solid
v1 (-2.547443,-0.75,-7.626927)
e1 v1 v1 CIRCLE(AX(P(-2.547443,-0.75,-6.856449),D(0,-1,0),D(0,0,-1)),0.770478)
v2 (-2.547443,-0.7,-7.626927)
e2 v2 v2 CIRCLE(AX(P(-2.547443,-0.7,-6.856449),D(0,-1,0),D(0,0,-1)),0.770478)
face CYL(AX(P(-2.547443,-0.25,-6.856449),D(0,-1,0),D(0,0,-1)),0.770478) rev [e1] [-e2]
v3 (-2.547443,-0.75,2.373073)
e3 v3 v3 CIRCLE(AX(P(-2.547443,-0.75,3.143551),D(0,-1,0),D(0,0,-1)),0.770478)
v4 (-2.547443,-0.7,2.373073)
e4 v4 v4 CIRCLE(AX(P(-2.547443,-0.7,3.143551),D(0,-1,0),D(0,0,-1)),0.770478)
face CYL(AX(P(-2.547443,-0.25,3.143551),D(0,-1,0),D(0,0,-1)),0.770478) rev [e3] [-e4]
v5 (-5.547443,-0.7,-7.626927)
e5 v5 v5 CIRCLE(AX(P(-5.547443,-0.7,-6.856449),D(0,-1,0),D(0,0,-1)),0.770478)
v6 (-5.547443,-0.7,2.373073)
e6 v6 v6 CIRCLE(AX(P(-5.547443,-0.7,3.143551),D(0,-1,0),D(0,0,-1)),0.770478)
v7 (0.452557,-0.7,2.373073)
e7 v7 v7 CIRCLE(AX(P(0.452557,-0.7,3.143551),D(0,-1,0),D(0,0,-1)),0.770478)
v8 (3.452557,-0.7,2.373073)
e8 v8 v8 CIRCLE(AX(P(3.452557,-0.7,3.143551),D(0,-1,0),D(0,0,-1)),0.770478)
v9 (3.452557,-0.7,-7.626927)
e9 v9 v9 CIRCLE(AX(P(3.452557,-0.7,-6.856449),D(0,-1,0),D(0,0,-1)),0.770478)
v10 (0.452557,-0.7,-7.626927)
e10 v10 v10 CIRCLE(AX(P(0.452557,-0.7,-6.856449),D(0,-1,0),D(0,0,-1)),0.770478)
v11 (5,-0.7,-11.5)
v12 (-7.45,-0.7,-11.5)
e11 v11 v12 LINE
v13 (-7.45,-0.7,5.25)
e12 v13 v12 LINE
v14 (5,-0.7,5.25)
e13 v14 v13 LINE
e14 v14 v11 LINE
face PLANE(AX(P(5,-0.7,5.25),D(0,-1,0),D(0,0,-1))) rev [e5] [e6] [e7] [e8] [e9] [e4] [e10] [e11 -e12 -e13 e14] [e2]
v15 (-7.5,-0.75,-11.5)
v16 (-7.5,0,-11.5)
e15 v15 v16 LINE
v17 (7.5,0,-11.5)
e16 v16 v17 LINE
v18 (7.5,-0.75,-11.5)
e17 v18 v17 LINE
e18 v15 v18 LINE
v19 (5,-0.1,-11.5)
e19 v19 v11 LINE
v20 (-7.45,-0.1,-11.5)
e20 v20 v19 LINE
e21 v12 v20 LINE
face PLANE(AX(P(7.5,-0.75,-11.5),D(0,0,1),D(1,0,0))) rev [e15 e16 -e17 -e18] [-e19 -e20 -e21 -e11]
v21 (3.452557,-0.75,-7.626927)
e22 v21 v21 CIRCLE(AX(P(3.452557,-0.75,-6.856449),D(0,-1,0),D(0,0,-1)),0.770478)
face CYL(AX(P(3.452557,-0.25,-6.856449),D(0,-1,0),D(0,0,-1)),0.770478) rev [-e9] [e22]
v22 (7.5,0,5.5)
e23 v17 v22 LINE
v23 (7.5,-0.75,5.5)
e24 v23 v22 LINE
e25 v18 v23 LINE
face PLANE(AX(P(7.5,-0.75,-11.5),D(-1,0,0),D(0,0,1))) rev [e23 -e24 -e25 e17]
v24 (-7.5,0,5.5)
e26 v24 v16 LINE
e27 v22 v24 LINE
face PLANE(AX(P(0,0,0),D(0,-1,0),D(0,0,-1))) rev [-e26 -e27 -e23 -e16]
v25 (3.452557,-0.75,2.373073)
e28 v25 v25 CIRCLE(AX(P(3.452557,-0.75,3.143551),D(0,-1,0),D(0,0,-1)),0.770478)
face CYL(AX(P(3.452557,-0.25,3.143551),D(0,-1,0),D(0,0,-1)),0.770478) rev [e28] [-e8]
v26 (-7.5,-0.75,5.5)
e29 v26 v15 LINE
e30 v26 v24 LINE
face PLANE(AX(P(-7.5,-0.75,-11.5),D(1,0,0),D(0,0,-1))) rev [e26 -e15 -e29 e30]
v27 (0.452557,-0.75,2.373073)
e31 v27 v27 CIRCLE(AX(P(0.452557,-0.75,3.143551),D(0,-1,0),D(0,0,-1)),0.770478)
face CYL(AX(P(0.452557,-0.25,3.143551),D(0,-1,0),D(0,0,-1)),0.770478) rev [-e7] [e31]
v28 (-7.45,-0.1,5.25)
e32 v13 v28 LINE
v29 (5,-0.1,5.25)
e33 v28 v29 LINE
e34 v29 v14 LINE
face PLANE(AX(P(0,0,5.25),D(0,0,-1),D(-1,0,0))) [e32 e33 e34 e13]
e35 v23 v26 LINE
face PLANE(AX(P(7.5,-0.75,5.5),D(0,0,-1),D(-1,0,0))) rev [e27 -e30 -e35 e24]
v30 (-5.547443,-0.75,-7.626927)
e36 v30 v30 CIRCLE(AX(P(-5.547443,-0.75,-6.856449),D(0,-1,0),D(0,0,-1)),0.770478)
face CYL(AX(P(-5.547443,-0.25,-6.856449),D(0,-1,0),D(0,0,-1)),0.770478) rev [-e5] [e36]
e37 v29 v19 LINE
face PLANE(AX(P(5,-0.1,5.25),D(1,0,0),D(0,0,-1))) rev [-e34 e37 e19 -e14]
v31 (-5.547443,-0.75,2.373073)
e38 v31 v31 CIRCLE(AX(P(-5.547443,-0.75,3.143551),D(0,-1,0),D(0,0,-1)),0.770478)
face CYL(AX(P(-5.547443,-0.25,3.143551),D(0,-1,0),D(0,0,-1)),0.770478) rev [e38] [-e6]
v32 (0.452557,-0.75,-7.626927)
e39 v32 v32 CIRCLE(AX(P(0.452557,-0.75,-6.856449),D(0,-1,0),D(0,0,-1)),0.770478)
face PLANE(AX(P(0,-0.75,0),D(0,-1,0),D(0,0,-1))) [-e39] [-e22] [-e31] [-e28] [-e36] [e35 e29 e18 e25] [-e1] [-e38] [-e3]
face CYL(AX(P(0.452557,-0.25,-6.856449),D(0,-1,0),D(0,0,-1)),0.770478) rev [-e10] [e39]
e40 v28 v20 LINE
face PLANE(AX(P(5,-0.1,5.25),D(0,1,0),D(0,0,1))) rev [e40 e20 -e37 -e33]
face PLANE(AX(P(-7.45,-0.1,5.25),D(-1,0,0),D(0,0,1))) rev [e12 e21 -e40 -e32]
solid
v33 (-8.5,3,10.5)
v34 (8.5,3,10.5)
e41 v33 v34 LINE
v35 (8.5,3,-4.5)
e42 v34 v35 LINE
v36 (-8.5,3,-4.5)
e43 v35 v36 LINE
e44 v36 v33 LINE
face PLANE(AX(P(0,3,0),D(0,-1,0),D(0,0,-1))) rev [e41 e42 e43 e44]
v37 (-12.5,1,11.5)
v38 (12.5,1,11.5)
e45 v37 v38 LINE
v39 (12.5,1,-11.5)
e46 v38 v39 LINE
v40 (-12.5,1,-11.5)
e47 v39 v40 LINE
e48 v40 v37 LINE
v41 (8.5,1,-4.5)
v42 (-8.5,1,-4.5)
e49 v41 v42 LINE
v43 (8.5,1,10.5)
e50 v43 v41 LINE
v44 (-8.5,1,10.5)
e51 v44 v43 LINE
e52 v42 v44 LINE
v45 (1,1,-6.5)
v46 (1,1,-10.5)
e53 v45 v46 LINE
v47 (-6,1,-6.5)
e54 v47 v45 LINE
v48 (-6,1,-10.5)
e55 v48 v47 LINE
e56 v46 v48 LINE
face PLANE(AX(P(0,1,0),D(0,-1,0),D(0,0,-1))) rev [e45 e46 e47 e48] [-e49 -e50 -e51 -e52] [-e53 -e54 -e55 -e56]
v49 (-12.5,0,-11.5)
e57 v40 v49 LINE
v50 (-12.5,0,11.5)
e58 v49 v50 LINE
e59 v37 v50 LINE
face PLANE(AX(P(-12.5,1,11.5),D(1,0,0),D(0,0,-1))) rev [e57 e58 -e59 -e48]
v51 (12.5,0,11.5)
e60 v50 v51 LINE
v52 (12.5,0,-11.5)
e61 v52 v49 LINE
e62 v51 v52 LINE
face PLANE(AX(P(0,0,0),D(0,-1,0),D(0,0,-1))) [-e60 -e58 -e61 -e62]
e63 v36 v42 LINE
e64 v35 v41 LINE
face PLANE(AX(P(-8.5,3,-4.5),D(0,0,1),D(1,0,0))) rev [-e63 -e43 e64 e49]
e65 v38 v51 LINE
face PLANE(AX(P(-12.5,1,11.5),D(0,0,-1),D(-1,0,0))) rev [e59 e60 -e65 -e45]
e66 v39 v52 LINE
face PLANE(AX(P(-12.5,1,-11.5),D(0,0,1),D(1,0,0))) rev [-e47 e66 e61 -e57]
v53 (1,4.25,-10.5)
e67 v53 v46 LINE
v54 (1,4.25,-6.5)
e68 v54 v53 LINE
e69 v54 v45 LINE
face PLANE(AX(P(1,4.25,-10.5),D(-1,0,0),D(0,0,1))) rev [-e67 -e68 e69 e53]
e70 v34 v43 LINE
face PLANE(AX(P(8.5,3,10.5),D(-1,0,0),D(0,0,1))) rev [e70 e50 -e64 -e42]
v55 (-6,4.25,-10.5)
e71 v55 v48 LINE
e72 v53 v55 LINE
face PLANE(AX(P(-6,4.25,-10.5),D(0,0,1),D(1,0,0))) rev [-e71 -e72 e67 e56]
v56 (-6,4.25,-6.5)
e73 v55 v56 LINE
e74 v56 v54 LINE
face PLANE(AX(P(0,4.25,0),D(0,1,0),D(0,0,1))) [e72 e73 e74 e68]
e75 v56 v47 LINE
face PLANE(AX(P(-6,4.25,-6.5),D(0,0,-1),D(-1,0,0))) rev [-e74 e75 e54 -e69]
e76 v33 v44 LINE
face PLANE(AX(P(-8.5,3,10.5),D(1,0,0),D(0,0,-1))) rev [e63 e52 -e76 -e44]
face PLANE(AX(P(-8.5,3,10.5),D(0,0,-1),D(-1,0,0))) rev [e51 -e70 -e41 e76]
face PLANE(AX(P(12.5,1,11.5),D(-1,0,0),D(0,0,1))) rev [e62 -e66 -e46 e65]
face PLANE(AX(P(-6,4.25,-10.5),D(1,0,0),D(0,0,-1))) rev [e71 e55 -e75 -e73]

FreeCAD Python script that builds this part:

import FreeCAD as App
import Part
import Sketcher

V = App.Vector
Q = App.Units.Quantity


def add_polygon(sketch, points):
    """Adds a closed chain of lines whose ends are joined by coincident constraints."""
    first, n = sketch.GeometryCount, len(points)
    for a, b in zip(points, points[1:] + points[:1]):
        sketch.addGeometry(Part.LineSegment(App.Vector(*a, 0), App.Vector(*b, 0)), False)
    for i in range(n):
        sketch.addConstraint(Sketcher.Constraint("Coincident", first + i, 2, first + (i + 1) % n, 1))

doc = App.newDocument("Part")
params = doc.addObject("Spreadsheet::Sheet", "Params")
for row, (alias, value) in enumerate([
    ("sketch1_width", "25 mm"),
    ("sketch1_height", "23 mm"),
    ("pad1_length", "1 mm"),
    ("sketch2_width", "17 mm"),
    ("sketch2_height", "15 mm"),
    ("pad2_length", "2 mm"),
    ("sketch3_width", "7 mm"),
    ("sketch3_height", "4 mm"),
    ("pad3_length", "3.25 mm"),
    ("sketch4_width", "15 mm"),
    ("sketch4_height", "17 mm"),
    ("pad4_length", "0.75 mm"),
    ("sketch5_height", "0.6 mm"),
    ("sketch5_width", "12.45 mm"),
    ("pocket1_length", "16.75 mm"),
    ("pocket2_length", "0.5 mm"),
], start=1):
    params.set(f"A{row}", alias)
    params.set(f"B{row}", "=" + value)
    params.setAlias(f"B{row}", alias)

body = doc.addObject("PartDesign::Body", "Body")

sketch1 = doc.addObject("Sketcher::SketchObject", "Sketch")
body.addObject(sketch1)
sketch1.AttachmentSupport = (doc.XZ_Plane, [""])
sketch1.MapMode = "FlatFace"
add_polygon(sketch1, [(-12.5, -11.5), (-12.5, 11.5), (12.5, 11.5), (12.5, -11.5)])
sketch1.addConstraint(Sketcher.Constraint("Vertical", 0))
sketch1.addConstraint(Sketcher.Constraint("Horizontal", 1))
sketch1.addConstraint(Sketcher.Constraint("Vertical", 2))
sketch1.addConstraint(Sketcher.Constraint("Horizontal", 3))
sketch1.addConstraint(Sketcher.Constraint("Symmetric", 0, 2, 2, 2, -1, 1))
sketch1.addConstraint(Sketcher.Constraint("DistanceX", 1, 1, 1, 2, Q("25 mm")))
sketch1.addConstraint(Sketcher.Constraint("DistanceY", 0, 1, 0, 2, Q("23 mm")))
sketch1.setExpression("Constraints[9]", "Params.sketch1_width")
sketch1.setExpression("Constraints[10]", "Params.sketch1_height")
pad1 = doc.addObject("PartDesign::Pad", "Pad")
body.addObject(pad1)
pad1.Profile = sketch1
pad1.setExpression("Length", "Params.pad1_length")
pad1.Reversed = True

sketch2 = doc.addObject("Sketcher::SketchObject", "Sketch001")
body.addObject(sketch2)
sketch2.AttachmentSupport = (doc.XZ_Plane, [""])
sketch2.MapMode = "FlatFace"
sketch2.AttachmentOffset = App.Placement(V(0, 0, -1), App.Rotation())
add_polygon(sketch2, [(-8.5, -4.5), (-8.5, 10.5), (8.5, 10.5), (8.5, -4.5)])
sketch2.addConstraint(Sketcher.Constraint("Vertical", 0))
sketch2.addConstraint(Sketcher.Constraint("Horizontal", 1))
sketch2.addConstraint(Sketcher.Constraint("Vertical", 2))
sketch2.addConstraint(Sketcher.Constraint("Horizontal", 3))
sketch2.addConstraint(Sketcher.Constraint("DistanceX", 1, 1, 1, 2, Q("17 mm")))
sketch2.addConstraint(Sketcher.Constraint("DistanceY", 0, 1, 0, 2, Q("15 mm")))
sketch2.addConstraint(Sketcher.Constraint("DistanceX", 0, 2, -1, 1, Q("8.5 mm")))
sketch2.addConstraint(Sketcher.Constraint("DistanceY", -1, 1, 0, 2, Q("10.5 mm")))
sketch2.setExpression("Constraints[8]", "Params.sketch2_width")
sketch2.setExpression("Constraints[9]", "Params.sketch2_height")
pad2 = doc.addObject("PartDesign::Pad", "Pad001")
body.addObject(pad2)
pad2.Profile = sketch2
pad2.setExpression("Length", "Params.pad2_length")
pad2.Reversed = True

sketch3 = doc.addObject("Sketcher::SketchObject", "Sketch002")
body.addObject(sketch3)
sketch3.AttachmentSupport = (doc.XZ_Plane, [""])
sketch3.MapMode = "FlatFace"
sketch3.AttachmentOffset = App.Placement(V(0, 0, -1), App.Rotation())
add_polygon(sketch3, [(-6, -10.5), (-6, -6.5), (1, -6.5), (1, -10.5)])
sketch3.addConstraint(Sketcher.Constraint("Vertical", 0))
sketch3.addConstraint(Sketcher.Constraint("Horizontal", 1))
sketch3.addConstraint(Sketcher.Constraint("Vertical", 2))
sketch3.addConstraint(Sketcher.Constraint("Horizontal", 3))
sketch3.addConstraint(Sketcher.Constraint("DistanceX", 1, 1, 1, 2, Q("7 mm")))
sketch3.addConstraint(Sketcher.Constraint("DistanceY", 0, 1, 0, 2, Q("4 mm")))
sketch3.addConstraint(Sketcher.Constraint("DistanceX", 0, 2, -1, 1, Q("6 mm")))
sketch3.addConstraint(Sketcher.Constraint("DistanceY", 0, 2, -1, 1, Q("6.5 mm")))
sketch3.setExpression("Constraints[8]", "Params.sketch3_width")
sketch3.setExpression("Constraints[9]", "Params.sketch3_height")
pad3 = doc.addObject("PartDesign::Pad", "Pad002")
body.addObject(pad3)
pad3.Profile = sketch3
pad3.setExpression("Length", "Params.pad3_length")
pad3.Reversed = True
body2 = doc.addObject("PartDesign::Body", "Body001")

sketch4 = doc.addObject("Sketcher::SketchObject", "Sketch003")
body2.addObject(sketch4)
sketch4.AttachmentSupport = (doc.getObject("XZ_Plane001"), [""])
sketch4.MapMode = "FlatFace"
add_polygon(sketch4, [(-7.5, 5.5), (-7.5, -11.5), (7.5, -11.5), (7.5, 5.5)])
sketch4.addConstraint(Sketcher.Constraint("Vertical", 0))
sketch4.addConstraint(Sketcher.Constraint("Horizontal", 1))
sketch4.addConstraint(Sketcher.Constraint("Vertical", 2))
sketch4.addConstraint(Sketcher.Constraint("Horizontal", 3))
sketch4.addConstraint(Sketcher.Constraint("DistanceX", 1, 1, 1, 2, Q("15 mm")))
sketch4.addConstraint(Sketcher.Constraint("DistanceY", 0, 2, 0, 1, Q("17 mm")))
sketch4.addConstraint(Sketcher.Constraint("DistanceX", 0, 2, -1, 1, Q("7.5 mm")))
sketch4.addConstraint(Sketcher.Constraint("DistanceY", 0, 2, -1, 1, Q("11.5 mm")))
sketch4.setExpression("Constraints[8]", "Params.sketch4_width")
sketch4.setExpression("Constraints[9]", "Params.sketch4_height")
pad4 = doc.addObject("PartDesign::Pad", "Pad003")
body2.addObject(pad4)
pad4.Profile = sketch4
pad4.setExpression("Length", "Params.pad4_length")

sketch5 = doc.addObject("Sketcher::SketchObject", "Sketch004")
body2.addObject(sketch5)
sketch5.AttachmentSupport = (doc.getObject("XY_Plane001"), [""])
sketch5.MapMode = "FlatFace"
sketch5.AttachmentOffset = App.Placement(V(0, 0, -11.5), App.Rotation())
add_polygon(sketch5, [(5, -0.1), (5, -0.7), (-7.45, -0.7), (-7.45, -0.1)])
sketch5.addConstraint(Sketcher.Constraint("Vertical", 0))
sketch5.addConstraint(Sketcher.Constraint("Horizontal", 1))
sketch5.addConstraint(Sketcher.Constraint("Vertical", 2))
sketch5.addConstraint(Sketcher.Constraint("Horizontal", 3))
sketch5.addConstraint(Sketcher.Constraint("DistanceY", 0, 2, 0, 1, Q("0.6 mm")))
sketch5.addConstraint(Sketcher.Constraint("DistanceX", -1, 1, 0, 2, Q("5 mm")))
sketch5.addConstraint(Sketcher.Constraint("DistanceX", 1, 2, 1, 1, Q("12.45 mm")))
sketch5.addConstraint(Sketcher.Constraint("DistanceY", 0, 2, -1, 1, Q("0.7 mm")))
sketch5.setExpression("Constraints[8]", "Params.sketch5_height")
sketch5.setExpression("Constraints[10]", "Params.sketch5_width")
pocket1 = doc.addObject("PartDesign::Pocket", "Pocket")
body2.addObject(pocket1)
pocket1.Profile = sketch5
pocket1.setExpression("Length", "Params.pocket1_length")
pocket1.Reversed = True

sketch6 = doc.addObject("Sketcher::SketchObject", "Sketch005")
body2.addObject(sketch6)
sketch6.AttachmentSupport = (doc.getObject("XZ_Plane001"), [""])
sketch6.MapMode = "FlatFace"
sketch6.AttachmentOffset = App.Placement(V(0, 0, 0.75), App.Rotation())
sketch6.addGeometry(Part.Circle(V(-5.547443, 3.143551, 0), V(0, 0, 1), 0.770478), False)
sketch6.addGeometry(Part.Circle(V(-2.547443, 3.143551, 0), V(0, 0, 1), 0.770478), False)
sketch6.addGeometry(Part.Circle(V(0.452557, 3.143551, 0), V(0, 0, 1), 0.770478), False)
sketch6.addGeometry(Part.Circle(V(3.452557, 3.143551, 0), V(0, 0, 1), 0.770478), False)
sketch6.addGeometry(Part.Circle(V(-2.547443, -6.856449, 0), V(0, 0, 1), 0.770478), False)
sketch6.addGeometry(Part.Circle(V(0.452557, -6.856449, 0), V(0, 0, 1), 0.770478), False)
sketch6.addGeometry(Part.Circle(V(3.452557, -6.856449, 0), V(0, 0, 1), 0.770478), False)
sketch6.addGeometry(Part.Circle(V(-5.547443, -6.856449, 0), V(0, 0, 1), 0.770478), False)
sketch6.addConstraint(Sketcher.Constraint("Equal", 0, 1))
sketch6.addConstraint(Sketcher.Constraint("Equal", 1, 2))
sketch6.addConstraint(Sketcher.Constraint("Equal", 2, 3))
sketch6.addConstraint(Sketcher.Constraint("Equal", 3, 4))
sketch6.addConstraint(Sketcher.Constraint("Equal", 4, 5))
sketch6.addConstraint(Sketcher.Constraint("Equal", 5, 6))
sketch6.addConstraint(Sketcher.Constraint("Equal", 6, 7))
sketch6.addConstraint(Sketcher.Constraint("Horizontal", 0, 3, 1, 3))
sketch6.addConstraint(Sketcher.Constraint("Horizontal", 1, 3, 2, 3))
sketch6.addConstraint(Sketcher.Constraint("Horizontal", 2, 3, 3, 3))
sketch6.addConstraint(Sketcher.Constraint("Horizontal", 4, 3, 5, 3))
sketch6.addConstraint(Sketcher.Constraint("Horizontal", 5, 3, 6, 3))
sketch6.addConstraint(Sketcher.Constraint("Horizontal", 6, 3, 7, 3))
sketch6.addConstraint(Sketcher.Constraint("Vertical", 1, 3, 4, 3))
sketch6.addConstraint(Sketcher.Constraint("Vertical", 2, 3, 5, 3))
sketch6.addConstraint(Sketcher.Constraint("Vertical", 3, 3, 6, 3))
sketch6.addConstraint(Sketcher.Constraint("Vertical", 0, 3, 7, 3))
sketch6.addConstraint(Sketcher.Constraint("DistanceX", 0, 3, 1, 3, Q("3 mm")))
sketch6.addConstraint(Sketcher.Constraint("DistanceX", 1, 3, 2, 3, Q("3 mm")))
sketch6.addConstraint(Sketcher.Constraint("DistanceX", 2, 3, 3, 3, Q("3 mm")))
sketch6.addConstraint(Sketcher.Constraint("DistanceY", 4, 3, 1, 3, Q("10 mm")))
sketch6.addConstraint(Sketcher.Constraint("Diameter", 0, Q("1.540956 mm")))
sketch6.addConstraint(Sketcher.Constraint("DistanceY", -1, 1, 0, 3, Q("3.143551 mm")))
sketch6.addConstraint(Sketcher.Constraint("DistanceX", 0, 3, -1, 1, Q("5.547443 mm")))
pocket2 = doc.addObject("PartDesign::Pocket", "Pocket001")
body2.addObject(pocket2)
pocket2.Profile = sketch6
pocket2.setExpression("Length", "Params.pocket2_length")

doc.recompute()
